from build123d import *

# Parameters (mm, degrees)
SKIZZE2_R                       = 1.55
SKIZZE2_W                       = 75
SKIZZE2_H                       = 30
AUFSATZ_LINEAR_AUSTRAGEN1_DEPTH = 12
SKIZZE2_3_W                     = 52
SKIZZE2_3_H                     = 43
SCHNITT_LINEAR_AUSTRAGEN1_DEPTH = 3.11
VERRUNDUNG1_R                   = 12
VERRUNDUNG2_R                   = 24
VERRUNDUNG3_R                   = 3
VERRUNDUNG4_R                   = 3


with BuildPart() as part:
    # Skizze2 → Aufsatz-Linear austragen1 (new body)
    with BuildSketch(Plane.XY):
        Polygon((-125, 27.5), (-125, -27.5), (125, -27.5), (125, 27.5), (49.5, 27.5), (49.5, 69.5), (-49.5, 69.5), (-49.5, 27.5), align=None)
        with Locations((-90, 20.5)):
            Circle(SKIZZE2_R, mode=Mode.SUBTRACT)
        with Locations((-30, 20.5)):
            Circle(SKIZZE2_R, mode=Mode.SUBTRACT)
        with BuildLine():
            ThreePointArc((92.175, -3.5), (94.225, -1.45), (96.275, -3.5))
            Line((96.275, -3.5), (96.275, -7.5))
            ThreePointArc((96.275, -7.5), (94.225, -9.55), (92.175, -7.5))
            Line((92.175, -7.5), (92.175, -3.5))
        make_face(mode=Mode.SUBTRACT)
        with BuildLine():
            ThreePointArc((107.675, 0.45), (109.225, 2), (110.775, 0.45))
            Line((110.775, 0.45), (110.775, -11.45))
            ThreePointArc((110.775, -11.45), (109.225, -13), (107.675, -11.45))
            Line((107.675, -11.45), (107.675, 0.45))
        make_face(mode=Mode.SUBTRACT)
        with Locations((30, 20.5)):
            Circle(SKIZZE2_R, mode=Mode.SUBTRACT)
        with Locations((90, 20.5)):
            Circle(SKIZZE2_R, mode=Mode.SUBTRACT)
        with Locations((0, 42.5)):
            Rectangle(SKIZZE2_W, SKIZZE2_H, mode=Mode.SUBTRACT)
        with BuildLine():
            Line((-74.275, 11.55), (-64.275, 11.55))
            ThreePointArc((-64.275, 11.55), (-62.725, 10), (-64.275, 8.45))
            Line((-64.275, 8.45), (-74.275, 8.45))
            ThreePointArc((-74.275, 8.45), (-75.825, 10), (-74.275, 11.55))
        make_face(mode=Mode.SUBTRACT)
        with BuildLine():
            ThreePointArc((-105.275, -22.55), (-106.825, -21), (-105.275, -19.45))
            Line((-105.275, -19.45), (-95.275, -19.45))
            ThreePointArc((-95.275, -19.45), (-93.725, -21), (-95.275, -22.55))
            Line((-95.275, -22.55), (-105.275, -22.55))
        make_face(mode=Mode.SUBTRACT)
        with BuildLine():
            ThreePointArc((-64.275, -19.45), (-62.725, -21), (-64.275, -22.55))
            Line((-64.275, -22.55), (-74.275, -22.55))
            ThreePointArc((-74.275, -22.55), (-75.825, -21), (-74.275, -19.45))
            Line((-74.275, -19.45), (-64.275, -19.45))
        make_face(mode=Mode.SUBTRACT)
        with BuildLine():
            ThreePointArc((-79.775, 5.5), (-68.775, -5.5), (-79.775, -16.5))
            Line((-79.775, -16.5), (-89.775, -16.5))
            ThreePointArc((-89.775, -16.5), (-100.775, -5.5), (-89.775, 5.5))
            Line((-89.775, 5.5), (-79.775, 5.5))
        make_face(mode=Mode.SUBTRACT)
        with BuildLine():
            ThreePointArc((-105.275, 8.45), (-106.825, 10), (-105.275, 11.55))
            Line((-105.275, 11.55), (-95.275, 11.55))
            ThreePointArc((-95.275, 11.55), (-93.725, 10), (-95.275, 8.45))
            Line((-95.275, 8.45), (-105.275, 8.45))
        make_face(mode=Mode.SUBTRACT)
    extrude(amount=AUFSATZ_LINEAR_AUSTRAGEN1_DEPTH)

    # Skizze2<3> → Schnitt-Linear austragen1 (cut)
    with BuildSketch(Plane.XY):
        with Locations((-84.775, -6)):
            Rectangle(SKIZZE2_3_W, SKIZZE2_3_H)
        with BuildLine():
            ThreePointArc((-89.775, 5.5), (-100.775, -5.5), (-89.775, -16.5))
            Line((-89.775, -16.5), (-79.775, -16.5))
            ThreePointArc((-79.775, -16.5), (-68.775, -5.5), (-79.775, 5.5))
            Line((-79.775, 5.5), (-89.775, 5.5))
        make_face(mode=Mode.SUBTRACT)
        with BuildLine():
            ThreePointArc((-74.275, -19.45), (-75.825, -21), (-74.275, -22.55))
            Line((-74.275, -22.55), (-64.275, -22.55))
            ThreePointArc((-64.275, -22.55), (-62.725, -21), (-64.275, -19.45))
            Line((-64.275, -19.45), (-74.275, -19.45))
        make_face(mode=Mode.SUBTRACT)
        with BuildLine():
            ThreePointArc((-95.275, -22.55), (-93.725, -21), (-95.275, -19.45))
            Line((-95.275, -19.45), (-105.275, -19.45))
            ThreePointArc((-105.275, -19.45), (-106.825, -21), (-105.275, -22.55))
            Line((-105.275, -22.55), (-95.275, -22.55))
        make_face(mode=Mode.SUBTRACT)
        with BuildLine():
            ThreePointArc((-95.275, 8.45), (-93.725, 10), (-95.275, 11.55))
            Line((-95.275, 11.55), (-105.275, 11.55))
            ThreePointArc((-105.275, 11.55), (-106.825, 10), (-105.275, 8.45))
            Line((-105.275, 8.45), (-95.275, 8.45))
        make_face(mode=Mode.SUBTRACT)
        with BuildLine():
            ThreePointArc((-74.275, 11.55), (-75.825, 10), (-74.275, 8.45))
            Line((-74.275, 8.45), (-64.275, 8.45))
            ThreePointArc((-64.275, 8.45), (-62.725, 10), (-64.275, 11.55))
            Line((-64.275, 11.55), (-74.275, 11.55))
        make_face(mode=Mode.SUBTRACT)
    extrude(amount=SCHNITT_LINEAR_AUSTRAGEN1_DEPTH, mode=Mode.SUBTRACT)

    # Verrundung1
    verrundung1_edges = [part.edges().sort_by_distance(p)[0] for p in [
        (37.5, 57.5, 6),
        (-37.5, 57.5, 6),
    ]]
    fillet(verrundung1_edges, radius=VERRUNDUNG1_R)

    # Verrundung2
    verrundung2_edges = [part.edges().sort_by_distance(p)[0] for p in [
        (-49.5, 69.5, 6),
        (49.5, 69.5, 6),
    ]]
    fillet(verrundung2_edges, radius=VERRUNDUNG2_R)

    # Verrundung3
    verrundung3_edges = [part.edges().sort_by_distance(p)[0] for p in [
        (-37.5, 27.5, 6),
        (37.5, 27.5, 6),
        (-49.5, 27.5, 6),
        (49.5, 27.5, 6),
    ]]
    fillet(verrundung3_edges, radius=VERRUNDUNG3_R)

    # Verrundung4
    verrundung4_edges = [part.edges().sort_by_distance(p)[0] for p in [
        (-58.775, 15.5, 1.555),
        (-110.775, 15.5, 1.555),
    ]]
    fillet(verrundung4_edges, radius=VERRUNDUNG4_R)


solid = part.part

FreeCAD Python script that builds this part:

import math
import FreeCAD as App
import Part
import Sketcher
from FreeCAD import Vector


def edges_at(feature, points):
    """Names of the edges that pass closest to the given points."""
    edges = feature.Shape.Edges
    near = lambda p: min(range(len(edges)), key=lambda i: edges[i].distToShape(Part.Vertex(*p))[0])
    return sorted({f"Edge{near(p) + 1}" for p in points})


def add_polygon(sketch, points):
    """Adds a closed chain of lines whose ends are joined by coincident constraints."""
    first, n = sketch.GeometryCount, len(points)
    for a, b in zip(points, points[1:] + points[:1]):
        sketch.addGeometry(Part.LineSegment(App.Vector(*a, 0), App.Vector(*b, 0)), False)
    for i in range(n):
        sketch.addConstraint(Sketcher.Constraint("Coincident", first + i, 2, first + (i + 1) % n, 1))

doc = App.newDocument("Part")
body = doc.addObject("PartDesign::Body", "Body")

# Sketch on XY plane
sketch1 = body.newObject("Sketcher::SketchObject", "Sketch")
sketch1.AttachmentSupport = (doc.getObject("XY_Plane"), [""])
sketch1.MapMode = "FlatFace"
add_polygon(sketch1, [(-125, 27.5), (-125, -27.5), (125, -27.5), (125, 27.5), (49.5, 27.5), (49.5, 69.5), (-49.5, 69.5), (-49.5, 27.5)])  # lines 0-7
sketch1.addGeometry(Part.LineSegment(Vector(-95.275, -22.55, 0), Vector(-105.275, -22.55, 0)), False)  # 8
sketch1.addGeometry(Part.ArcOfCircle(Part.Circle(Vector(-105.275, -21, 0), Vector(0, 0, 1), 1.55), math.radians(90), math.radians(270)), False)  # 9
sketch1.addGeometry(Part.LineSegment(Vector(-105.275, -19.45, 0), Vector(-95.275, -19.45, 0)), False)  # 10
sketch1.addGeometry(Part.ArcOfCircle(Part.Circle(Vector(-95.275, -21, 0), Vector(0, 0, 1), 1.55), math.radians(-90), math.radians(90)), False)  # 11
sketch1.addGeometry(Part.LineSegment(Vector(-74.275, -19.45, 0), Vector(-64.275, -19.45, 0)), False)  # 12
sketch1.addGeometry(Part.ArcOfCircle(Part.Circle(Vector(-64.275, -21, 0), Vector(0, 0, 1), 1.55), math.radians(-90), math.radians(90)), False)  # 13
sketch1.addGeometry(Part.LineSegment(Vector(-64.275, -22.55, 0), Vector(-74.275, -22.55, 0)), False)  # 14
sketch1.addGeometry(Part.ArcOfCircle(Part.Circle(Vector(-74.275, -21, 0), Vector(0, 0, 1), 1.55), math.radians(90), math.radians(270)), False)  # 15
sketch1.addGeometry(Part.LineSegment(Vector(-89.775, 5.5, 0), Vector(-79.775, 5.5, 0)), False)  # 16
sketch1.addGeometry(Part.ArcOfCircle(Part.Circle(Vector(-79.775, -5.5, 0), Vector(0, 0, 1), 11), math.radians(-90), math.radians(90)), False)  # 17
sketch1.addGeometry(Part.LineSegment(Vector(-79.775, -16.5, 0), Vector(-89.775, -16.5, 0)), False)  # 18
sketch1.addGeometry(Part.ArcOfCircle(Part.Circle(Vector(-89.775, -5.5, 0), Vector(0, 0, 1), 11), math.radians(90), math.radians(270)), False)  # 19
sketch1.addGeometry(Part.LineSegment(Vector(-95.275, 8.45, 0), Vector(-105.275, 8.45, 0)), False)  # 20
sketch1.addGeometry(Part.ArcOfCircle(Part.Circle(Vector(-105.275, 10, 0), Vector(0, 0, 1), 1.55), math.radians(90), math.radians(270)), False)  # 21
sketch1.addGeometry(Part.LineSegment(Vector(-105.275, 11.55, 0), Vector(-95.275, 11.55, 0)), False)  # 22
sketch1.addGeometry(Part.ArcOfCircle(Part.Circle(Vector(-95.275, 10, 0), Vector(0, 0, 1), 1.55), math.radians(-90), math.radians(90)), False)  # 23
sketch1.addGeometry(Part.ArcOfCircle(Part.Circle(Vector(-74.275, 10, 0), Vector(0, 0, 1), 1.55), math.radians(90), math.radians(270)), False)  # 24
sketch1.addGeometry(Part.LineSegment(Vector(-74.275, 11.55, 0), Vector(-64.275, 11.55, 0)), False)  # 25
sketch1.addGeometry(Part.ArcOfCircle(Part.Circle(Vector(-64.275, 10, 0), Vector(0, 0, 1), 1.55), math.radians(-90), math.radians(90)), False)  # 26
sketch1.addGeometry(Part.LineSegment(Vector(-64.275, 8.45, 0), Vector(-74.275, 8.45, 0)), False)  # 27
sketch1.addGeometry(Part.LineSegment(Vector(92.175, -7.5, 0), Vector(92.175, -3.5, 0)), False)  # 28
sketch1.addGeometry(Part.ArcOfCircle(Part.Circle(Vector(94.225, -3.5, 0), Vector(0, 0, 1), 2.05), math.radians(0), math.radians(180)), False)  # 29
sketch1.addGeometry(Part.LineSegment(Vector(96.275, -3.5, 0), Vector(96.275, -7.5, 0)), False)  # 30
sketch1.addGeometry(Part.ArcOfCircle(Part.Circle(Vector(94.225, -7.5, 0), Vector(0, 0, 1), 2.05), math.radians(180), math.radians(360)), False)  # 31
sketch1.addGeometry(Part.LineSegment(Vector(107.675, -11.45, 0), Vector(107.675, 0.45, 0)), False)  # 32
sketch1.addGeometry(Part.ArcOfCircle(Part.Circle(Vector(109.225, 0.45, 0), Vector(0, 0, 1), 1.55), math.radians(0), math.radians(180)), False)  # 33
sketch1.addGeometry(Part.LineSegment(Vector(110.775, 0.45, 0), Vector(110.775, -11.45, 0)), False)  # 34
sketch1.addGeometry(Part.ArcOfCircle(Part.Circle(Vector(109.225, -11.45, 0), Vector(0, 0, 1), 1.55), math.radians(180), math.radians(360)), False)  # 35
sketch1.addGeometry(Part.Circle(Vector(-90, 20.5, 0), Vector(0, 0, 1), 1.55), False)  # 36
sketch1.addGeometry(Part.Circle(Vector(-30, 20.5, 0), Vector(0, 0, 1), 1.55), False)  # 37
add_polygon(sketch1, [(37.5, 27.5), (-37.5, 27.5), (-37.5, 57.5), (37.5, 57.5)])  # lines 38-41
sketch1.addGeometry(Part.Circle(Vector(30, 20.5, 0), Vector(0, 0, 1), 1.55), False)  # 42
sketch1.addGeometry(Part.Circle(Vector(90, 20.5, 0), Vector(0, 0, 1), 1.55), False)  # 43
sketch1.addConstraint(Sketcher.Constraint("Tangent", 8, 2, 9, 2))
sketch1.addConstraint(Sketcher.Constraint("Tangent", 9, 1, 10, 1))
sketch1.addConstraint(Sketcher.Constraint("Tangent", 10, 2, 11, 2))
sketch1.addConstraint(Sketcher.Constraint("Tangent", 11, 1, 8, 1))
sketch1.addConstraint(Sketcher.Constraint("Tangent", 12, 2, 13, 2))
sketch1.addConstraint(Sketcher.Constraint("Tangent", 13, 1, 14, 1))
sketch1.addConstraint(Sketcher.Constraint("Tangent", 14, 2, 15, 2))
sketch1.addConstraint(Sketcher.Constraint("Tangent", 15, 1, 12, 1))
sketch1.addConstraint(Sketcher.Constraint("Tangent", 16, 2, 17, 2))
sketch1.addConstraint(Sketcher.Constraint("Tangent", 17, 1, 18, 1))
sketch1.addConstraint(Sketcher.Constraint("Tangent", 18, 2, 19, 2))
sketch1.addConstraint(Sketcher.Constraint("Tangent", 19, 1, 16, 1))
sketch1.addConstraint(Sketcher.Constraint("Tangent", 20, 2, 21, 2))
sketch1.addConstraint(Sketcher.Constraint("Tangent", 21, 1, 22, 1))
sketch1.addConstraint(Sketcher.Constraint("Tangent", 22, 2, 23, 2))
sketch1.addConstraint(Sketcher.Constraint("Tangent", 23, 1, 20, 1))
sketch1.addConstraint(Sketcher.Constraint("Tangent", 24, 1, 25, 1))
sketch1.addConstraint(Sketcher.Constraint("Tangent", 25, 2, 26, 2))
sketch1.addConstraint(Sketcher.Constraint("Tangent", 26, 1, 27, 1))
sketch1.addConstraint(Sketcher.Constraint("Tangent", 27, 2, 24, 2))
sketch1.addConstraint(Sketcher.Constraint("Tangent", 28, 2, 29, 2))
sketch1.addConstraint(Sketcher.Constraint("Tangent", 29, 1, 30, 1))
sketch1.addConstraint(Sketcher.Constraint("Tangent", 30, 2, 31, 2))
sketch1.addConstraint(Sketcher.Constraint("Tangent", 31, 1, 28, 1))
sketch1.addConstraint(Sketcher.Constraint("Tangent", 32, 2, 33, 2))
sketch1.addConstraint(Sketcher.Constraint("Tangent", 33, 1, 34, 1))
sketch1.addConstraint(Sketcher.Constraint("Tangent", 34, 2, 35, 2))
sketch1.addConstraint(Sketcher.Constraint("Tangent", 35, 1, 32, 1))
sketch1.addConstraint(Sketcher.Constraint("Vertical", 0))
sketch1.addConstraint(Sketcher.Constraint("Horizontal", 1))
sketch1.addConstraint(Sketcher.Constraint("Vertical", 2))
sketch1.addConstraint(Sketcher.Constraint("Horizontal", 3))
sketch1.addConstraint(Sketcher.Constraint("Vertical", 4))
sketch1.addConstraint(Sketcher.Constraint("Horizontal", 5))
sketch1.addConstraint(Sketcher.Constraint("Vertical", 6))
sketch1.addConstraint(Sketcher.Constraint("Horizontal", 7))
sketch1.addConstraint(Sketcher.Constraint("Horizontal", 8))
sketch1.addConstraint(Sketcher.Constraint("Horizontal", 10))
sketch1.addConstraint(Sketcher.Constraint("Horizontal", 12))
sketch1.addConstraint(Sketcher.Constraint("Horizontal", 14))
sketch1.addConstraint(Sketcher.Constraint("Horizontal", 16))
sketch1.addConstraint(Sketcher.Constraint("Horizontal", 18))
sketch1.addConstraint(Sketcher.Constraint("Horizontal", 20))
sketch1.addConstraint(Sketcher.Constraint("Horizontal", 22))
sketch1.addConstraint(Sketcher.Constraint("Horizontal", 25))
sketch1.addConstraint(Sketcher.Constraint("Horizontal", 27))
sketch1.addConstraint(Sketcher.Constraint("Vertical", 28))
sketch1.addConstraint(Sketcher.Constraint("Vertical", 30))
sketch1.addConstraint(Sketcher.Constraint("Vertical", 32))
sketch1.addConstraint(Sketcher.Constraint("Vertical", 34))
sketch1.addConstraint(Sketcher.Constraint("Horizontal", 38))
sketch1.addConstraint(Sketcher.Constraint("Vertical", 39))
sketch1.addConstraint(Sketcher.Constraint("Horizontal", 40))
sketch1.addConstraint(Sketcher.Constraint("Vertical", 41))
sketch1.addConstraint(Sketcher.Constraint("Equal", 11, 13))
sketch1.addConstraint(Sketcher.Constraint("Equal", 15, 21))
sketch1.addConstraint(Sketcher.Constraint("Equal", 23, 24))
sketch1.addConstraint(Sketcher.Constraint("Equal", 26, 33))
sketch1.addConstraint(Sketcher.Constraint("Equal", 35, 36))
sketch1.addConstraint(Sketcher.Constraint("Equal", 36, 37))
sketch1.addConstraint(Sketcher.Constraint("Equal", 37, 42))
sketch1.addConstraint(Sketcher.Constraint("Equal", 42, 43))
sketch1.addConstraint(Sketcher.Constraint("Symmetric", 0, 2, 2, 2, -1, 1))
sketch1.addConstraint(Sketcher.Constraint("Symmetric", 37, 3, 42, 3, -2))
sketch1.addConstraint(Sketcher.Constraint("Symmetric", 36, 3, 43, 3, -2))
sketch1.addConstraint(Sketcher.Constraint("Symmetric", 3, 2, 6, 2, -2))
sketch1.addConstraint(Sketcher.Constraint("Horizontal", 11, 3, 13, 3))
sketch1.addConstraint(Sketcher.Constraint("Horizontal", 23, 3, 24, 3))
sketch1.addConstraint(Sketcher.Constraint("Horizontal", 36, 3, 37, 3))
sketch1.addConstraint(Sketcher.Constraint("Horizontal", 7, 2, 38, 2))
sketch1.addConstraint(Sketcher.Constraint("Vertical", 9, 3, 21, 3))
sketch1.addConstraint(Sketcher.Constraint("Vertical", 11, 3, 23, 3))
sketch1.addConstraint(Sketcher.Constraint("Vertical", 15, 3, 24, 3))
sketch1.addConstraint(Sketcher.Constraint("Vertical", 13, 3, 26, 3))
sketch1.addConstraint(Sketcher.Constraint("Equal", 10, 12))
sketch1.addConstraint(Sketcher.Constraint("Equal", 14, 16))
sketch1.addConstraint(Sketcher.Constraint("Radius", 17, 11.0))
sketch1.addConstraint(Sketcher.Constraint("Diameter", 36, 3.1))
sketch1.addConstraint(Sketcher.Constraint("DistanceX", 1, 1, 1, 2, 250.0))
sketch1.addConstraint(Sketcher.Constraint("DistanceX", 5, 2, 5, 1, 99.0))
sketch1.addConstraint(Sketcher.Constraint("DistanceX", 8, 2, 8, 1, 10.0))
sketch1.addConstraint(Sketcher.Constraint("DistanceX", 38, 2, 38, 1, 75.0))
sketch1.addConstraint(Sketcher.Constraint("DistanceY", 0, 2, 0, 1, 55.0))
sketch1.addConstraint(Sketcher.Constraint("DistanceY", 4, 1, 4, 2, 42.0))
sketch1.addConstraint(Sketcher.Constraint("DistanceY", 28, 1, 28, 2, 4.0))
sketch1.addConstraint(Sketcher.Constraint("DistanceY", 39, 1, 39, 2, 30.0))
sketch1.addConstraint(Sketcher.Constraint("Radius", 29, 2.05))
sketch1.addConstraint(Sketcher.Constraint("DistanceY", 32, 1, 32, 2, 11.9))
sketch1.addConstraint(Sketcher.Constraint("DistanceY", 9, 3, -1, 1, 21.0))
sketch1.addConstraint(Sketcher.Constraint("DistanceY", -1, 1, 21, 3, 10.0))
sketch1.addConstraint(Sketcher.Constraint("DistanceX", 36, 3, -1, 1, 90.0))
sketch1.addConstraint(Sketcher.Constraint("DistanceX", 37, 3, -1, 1, 30.0))
sketch1.addConstraint(Sketcher.Constraint("DistanceX", 11, 3, 13, 3, 31.0))
sketch1.addConstraint(Sketcher.Constraint("DistanceX", 17, 3, 29, 3, 174.0))
sketch1.addConstraint(Sketcher.Constraint("DistanceY", 17, 3, 29, 3, 2.0))
sketch1.addConstraint(Sketcher.Constraint("DistanceX", 29, 3, 33, 3, 15.0))
sketch1.addConstraint(Sketcher.Constraint("DistanceY", 19, 3, 36, 3, 26.0))
sketch1.addConstraint(Sketcher.Constraint("DistanceY", 0, 2, 19, 3, 22.0))
sketch1.addConstraint(Sketcher.Constraint("DistanceX", 6, 2, 38, 2, 12.0))
sketch1.addConstraint(Sketcher.Constraint("DistanceX", 17, 3, 15, 3, 5.5))
sketch1.addConstraint(Sketcher.Constraint("DistanceY", -1, 1, 33, 3, 0.45))
sketch1.addConstraint(Sketcher.Constraint("DistanceX", 9, 3, -1, 1, 105.275))
pad1 = body.newObject("PartDesign::Pad", "Pad")
pad1.Profile = sketch1
pad1.Length = 12

# Sketch on XY plane
sketch2 = body.newObject("Sketcher::SketchObject", "Sketch001")
sketch2.AttachmentSupport = (doc.getObject("XY_Plane"), [""])
sketch2.MapMode = "FlatFace"
add_polygon(sketch2, [(-110.775, 15.5), (-110.775, -27.5), (-58.775, -27.5), (-58.775, 15.5)])  # lines 0-3
sketch2.addGeometry(Part.ArcOfCircle(Part.Circle(Vector(-95.275, -21, 0), Vector(0, 0, 1), 1.55), math.radians(-90), math.radians(90)), False)  # 4
sketch2.addGeometry(Part.LineSegment(Vector(-95.275, -22.55, 0), Vector(-105.275, -22.55, 0)), False)  # 5
sketch2.addGeometry(Part.ArcOfCircle(Part.Circle(Vector(-105.275, -21, 0), Vector(0, 0, 1), 1.55), math.radians(90), math.radians(270)), False)  # 6
sketch2.addGeometry(Part.LineSegment(Vector(-105.275, -19.45, 0), Vector(-95.275, -19.45, 0)), False)  # 7
sketch2.addGeometry(Part.ArcOfCircle(Part.Circle(Vector(-89.775, -5.5, 0), Vector(0, 0, 1), 11), math.radians(90), math.radians(270)), False)  # 8
sketch2.addGeometry(Part.LineSegment(Vector(-89.775, 5.5, 0), Vector(-79.775, 5.5, 0)), False)  # 9
sketch2.addGeometry(Part.ArcOfCircle(Part.Circle(Vector(-79.775, -5.5, 0), Vector(0, 0, 1), 11), math.radians(-90), math.radians(90)), False)  # 10
sketch2.addGeometry(Part.LineSegment(Vector(-79.775, -16.5, 0), Vector(-89.775, -16.5, 0)), False)  # 11
sketch2.addGeometry(Part.ArcOfCircle(Part.Circle(Vector(-74.275, -21, 0), Vector(0, 0, 1), 1.55), math.radians(90), math.radians(270)), False)  # 12
sketch2.addGeometry(Part.LineSegment(Vector(-74.275, -19.45, 0), Vector(-64.275, -19.45, 0)), False)  # 13
sketch2.addGeometry(Part.ArcOfCircle(Part.Circle(Vector(-64.275, -21, 0), Vector(0, 0, 1), 1.55), math.radians(-90), math.radians(90)), False)  # 14
sketch2.addGeometry(Part.LineSegment(Vector(-64.275, -22.55, 0), Vector(-74.275, -22.55, 0)), False)  # 15
sketch2.addGeometry(Part.ArcOfCircle(Part.Circle(Vector(-95.275, 10, 0), Vector(0, 0, 1), 1.55), math.radians(-90), math.radians(90)), False)  # 16
sketch2.addGeometry(Part.LineSegment(Vector(-95.275, 8.45, 0), Vector(-105.275, 8.45, 0)), False)  # 17
sketch2.addGeometry(Part.ArcOfCircle(Part.Circle(Vector(-105.275, 10, 0), Vector(0, 0, 1), 1.55), math.radians(90), math.radians(270)), False)  # 18
sketch2.addGeometry(Part.LineSegment(Vector(-105.275, 11.55, 0), Vector(-95.275, 11.55, 0)), False)  # 19
sketch2.addGeometry(Part.ArcOfCircle(Part.Circle(Vector(-74.275, 10, 0), Vector(0, 0, 1), 1.55), math.radians(90), math.radians(270)), False)  # 20
sketch2.addGeometry(Part.LineSegment(Vector(-74.275, 11.55, 0), Vector(-64.275, 11.55, 0)), False)  # 21
sketch2.addGeometry(Part.ArcOfCircle(Part.Circle(Vector(-64.275, 10, 0), Vector(0, 0, 1), 1.55), math.radians(-90), math.radians(90)), False)  # 22
sketch2.addGeometry(Part.LineSegment(Vector(-64.275, 8.45, 0), Vector(-74.275, 8.45, 0)), False)  # 23
sketch2.addConstraint(Sketcher.Constraint("Tangent", 4, 1, 5, 1))
sketch2.addConstraint(Sketcher.Constraint("Tangent", 5, 2, 6, 2))
sketch2.addConstraint(Sketcher.Constraint("Tangent", 6, 1, 7, 1))
sketch2.addConstraint(Sketcher.Constraint("Tangent", 7, 2, 4, 2))
sketch2.addConstraint(Sketcher.Constraint("Tangent", 8, 1, 9, 1))
sketch2.addConstraint(Sketcher.Constraint("Tangent", 9, 2, 10, 2))
sketch2.addConstraint(Sketcher.Constraint("Tangent", 10, 1, 11, 1))
sketch2.addConstraint(Sketcher.Constraint("Tangent", 11, 2, 8, 2))
sketch2.addConstraint(Sketcher.Constraint("Tangent", 12, 1, 13, 1))
sketch2.addConstraint(Sketcher.Constraint("Tangent", 13, 2, 14, 2))
sketch2.addConstraint(Sketcher.Constraint("Tangent", 14, 1, 15, 1))
sketch2.addConstraint(Sketcher.Constraint("Tangent", 15, 2, 12, 2))
sketch2.addConstraint(Sketcher.Constraint("Tangent", 16, 1, 17, 1))
sketch2.addConstraint(Sketcher.Constraint("Tangent", 17, 2, 18, 2))
sketch2.addConstraint(Sketcher.Constraint("Tangent", 18, 1, 19, 1))
sketch2.addConstraint(Sketcher.Constraint("Tangent", 19, 2, 16, 2))
sketch2.addConstraint(Sketcher.Constraint("Tangent", 20, 1, 21, 1))
sketch2.addConstraint(Sketcher.Constraint("Tangent", 21, 2, 22, 2))
sketch2.addConstraint(Sketcher.Constraint("Tangent", 22, 1, 23, 1))
sketch2.addConstraint(Sketcher.Constraint("Tangent", 23, 2, 20, 2))
sketch2.addConstraint(Sketcher.Constraint("Vertical", 0))
sketch2.addConstraint(Sketcher.Constraint("Horizontal", 1))
sketch2.addConstraint(Sketcher.Constraint("Vertical", 2))
sketch2.addConstraint(Sketcher.Constraint("Horizontal", 3))
sketch2.addConstraint(Sketcher.Constraint("Horizontal", 5))
sketch2.addConstraint(Sketcher.Constraint("Horizontal", 7))
sketch2.addConstraint(Sketcher.Constraint("Horizontal", 9))
sketch2.addConstraint(Sketcher.Constraint("Horizontal", 11))
sketch2.addConstraint(Sketcher.Constraint("Horizontal", 13))
sketch2.addConstraint(Sketcher.Constraint("Horizontal", 15))
sketch2.addConstraint(Sketcher.Constraint("Horizontal", 17))
sketch2.addConstraint(Sketcher.Constraint("Horizontal", 19))
sketch2.addConstraint(Sketcher.Constraint("Horizontal", 21))
sketch2.addConstraint(Sketcher.Constraint("Horizontal", 23))
sketch2.addConstraint(Sketcher.Constraint("Equal", 6, 12))
sketch2.addConstraint(Sketcher.Constraint("Equal", 14, 16))
sketch2.addConstraint(Sketcher.Constraint("Equal", 18, 20))
sketch2.addConstraint(Sketcher.Constraint("Horizontal", 6, 3, 12, 3))
sketch2.addConstraint(Sketcher.Constraint("Horizontal", 18, 3, 20, 3))
sketch2.addConstraint(Sketcher.Constraint("Vertical", 4, 3, 16, 3))
sketch2.addConstraint(Sketcher.Constraint("Vertical", 6, 3, 18, 3))
sketch2.addConstraint(Sketcher.Constraint("Vertical", 12, 3, 20, 3))
sketch2.addConstraint(Sketcher.Constraint("Vertical", 14, 3, 22, 3))
sketch2.addConstraint(Sketcher.Constraint("Equal", 7, 9))
sketch2.addConstraint(Sketcher.Constraint("Equal", 11, 13))
sketch2.addConstraint(Sketcher.Constraint("Radius", 8, 11.0))
sketch2.addConstraint(Sketcher.Constraint("DistanceX", 1, 1, 1, 2, 52.0))
sketch2.addConstraint(Sketcher.Constraint("DistanceX", 5, 2, 5, 1, 10.0))
sketch2.addConstraint(Sketcher.Constraint("DistanceY", 0, 2, 0, 1, 43.0))
sketch2.addConstraint(Sketcher.Constraint("Radius", 4, 1.55))
sketch2.addConstraint(Sketcher.Constraint("DistanceY", 4, 3, -1, 1, 21.0))
sketch2.addConstraint(Sketcher.Constraint("DistanceY", -1, 1, 16, 3, 10.0))
sketch2.addConstraint(Sketcher.Constraint("DistanceX", 4, 3, 12, 3, 21.0))
sketch2.addConstraint(Sketcher.Constraint("DistanceX", 0, 2, 8, 3, 21.0))
sketch2.addConstraint(Sketcher.Constraint("DistanceY", 0, 2, 8, 3, 22.0))
sketch2.addConstraint(Sketcher.Constraint("DistanceY", 8, 3, -1, 1, 5.5))
sketch2.addConstraint(Sketcher.Constraint("DistanceX", 4, 3, 8, 3, 5.5))
sketch2.addConstraint(Sketcher.Constraint("DistanceX", 4, 3, -1, 1, 95.275))
pocket1 = body.newObject("PartDesign::Pocket", "Pocket")
pocket1.Profile = sketch2
pocket1.Length = 3.11
pocket1.Reversed = True
doc.recompute()

fillet = body.newObject("PartDesign::Fillet", "Fillet")
fillet.Base = (pocket1, edges_at(pocket1, [(37.5, 57.5, 6), (-37.5, 57.5, 6)]))
fillet.Radius = 12
doc.recompute()

fillet2 = body.newObject("PartDesign::Fillet", "Fillet001")
fillet2.Base = (fillet, edges_at(fillet, [(-49.5, 69.5, 6), (49.5, 69.5, 6)]))
fillet2.Radius = 24
doc.recompute()

fillet3 = body.newObject("PartDesign::Fillet", "Fillet002")
fillet3.Base = (fillet2, edges_at(fillet2, [
    (-37.5, 27.5, 6),
    (37.5, 27.5, 6),
    (-49.5, 27.5, 6),
    (49.5, 27.5, 6),
]))
fillet3.Radius = 3
doc.recompute()

fillet4 = body.newObject("PartDesign::Fillet", "Fillet003")
fillet4.Base = (fillet3, edges_at(fillet3, [(-58.775, 15.5, 1.555), (-110.775, 15.5, 1.555)]))
fillet4.Radius = 3

doc.recompute()
